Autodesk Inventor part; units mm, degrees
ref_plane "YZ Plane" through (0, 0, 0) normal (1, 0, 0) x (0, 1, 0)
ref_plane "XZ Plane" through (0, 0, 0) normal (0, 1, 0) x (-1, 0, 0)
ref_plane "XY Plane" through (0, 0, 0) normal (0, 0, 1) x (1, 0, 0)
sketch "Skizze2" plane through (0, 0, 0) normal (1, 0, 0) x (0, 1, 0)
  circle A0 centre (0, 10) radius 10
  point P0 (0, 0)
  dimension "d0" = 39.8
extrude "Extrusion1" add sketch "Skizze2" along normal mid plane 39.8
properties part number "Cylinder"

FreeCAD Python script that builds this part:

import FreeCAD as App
import Part
import Sketcher
Q = App.Units.Quantity

doc = App.newDocument("Part")
body = doc.addObject("PartDesign::Body", "Body")

# Sketch on YZ plane
sketch1 = body.newObject("Sketcher::SketchObject", "Sketch")
sketch1.AttachmentSupport = (doc.getObject("YZ_Plane"), [""])
sketch1.MapMode = "FlatFace"
sketch1.addGeometry(Part.Circle(App.Vector(0, 10, 0), App.Vector(0, 0, 1), 10), False)
sketch1.addConstraint([
    Sketcher.Constraint("PointOnObject", 0, 3, -2),
    Sketcher.Constraint("Diameter", 0, Q("20 mm")),
    Sketcher.Constraint("DistanceY", -1, 1, 0, 3, Q("10 mm")),
])
pad1 = body.newObject("PartDesign::Pad", "Pad")
pad1.Profile = sketch1
pad1.Length = 39.8
pad1.Midplane = True

doc.recompute()
